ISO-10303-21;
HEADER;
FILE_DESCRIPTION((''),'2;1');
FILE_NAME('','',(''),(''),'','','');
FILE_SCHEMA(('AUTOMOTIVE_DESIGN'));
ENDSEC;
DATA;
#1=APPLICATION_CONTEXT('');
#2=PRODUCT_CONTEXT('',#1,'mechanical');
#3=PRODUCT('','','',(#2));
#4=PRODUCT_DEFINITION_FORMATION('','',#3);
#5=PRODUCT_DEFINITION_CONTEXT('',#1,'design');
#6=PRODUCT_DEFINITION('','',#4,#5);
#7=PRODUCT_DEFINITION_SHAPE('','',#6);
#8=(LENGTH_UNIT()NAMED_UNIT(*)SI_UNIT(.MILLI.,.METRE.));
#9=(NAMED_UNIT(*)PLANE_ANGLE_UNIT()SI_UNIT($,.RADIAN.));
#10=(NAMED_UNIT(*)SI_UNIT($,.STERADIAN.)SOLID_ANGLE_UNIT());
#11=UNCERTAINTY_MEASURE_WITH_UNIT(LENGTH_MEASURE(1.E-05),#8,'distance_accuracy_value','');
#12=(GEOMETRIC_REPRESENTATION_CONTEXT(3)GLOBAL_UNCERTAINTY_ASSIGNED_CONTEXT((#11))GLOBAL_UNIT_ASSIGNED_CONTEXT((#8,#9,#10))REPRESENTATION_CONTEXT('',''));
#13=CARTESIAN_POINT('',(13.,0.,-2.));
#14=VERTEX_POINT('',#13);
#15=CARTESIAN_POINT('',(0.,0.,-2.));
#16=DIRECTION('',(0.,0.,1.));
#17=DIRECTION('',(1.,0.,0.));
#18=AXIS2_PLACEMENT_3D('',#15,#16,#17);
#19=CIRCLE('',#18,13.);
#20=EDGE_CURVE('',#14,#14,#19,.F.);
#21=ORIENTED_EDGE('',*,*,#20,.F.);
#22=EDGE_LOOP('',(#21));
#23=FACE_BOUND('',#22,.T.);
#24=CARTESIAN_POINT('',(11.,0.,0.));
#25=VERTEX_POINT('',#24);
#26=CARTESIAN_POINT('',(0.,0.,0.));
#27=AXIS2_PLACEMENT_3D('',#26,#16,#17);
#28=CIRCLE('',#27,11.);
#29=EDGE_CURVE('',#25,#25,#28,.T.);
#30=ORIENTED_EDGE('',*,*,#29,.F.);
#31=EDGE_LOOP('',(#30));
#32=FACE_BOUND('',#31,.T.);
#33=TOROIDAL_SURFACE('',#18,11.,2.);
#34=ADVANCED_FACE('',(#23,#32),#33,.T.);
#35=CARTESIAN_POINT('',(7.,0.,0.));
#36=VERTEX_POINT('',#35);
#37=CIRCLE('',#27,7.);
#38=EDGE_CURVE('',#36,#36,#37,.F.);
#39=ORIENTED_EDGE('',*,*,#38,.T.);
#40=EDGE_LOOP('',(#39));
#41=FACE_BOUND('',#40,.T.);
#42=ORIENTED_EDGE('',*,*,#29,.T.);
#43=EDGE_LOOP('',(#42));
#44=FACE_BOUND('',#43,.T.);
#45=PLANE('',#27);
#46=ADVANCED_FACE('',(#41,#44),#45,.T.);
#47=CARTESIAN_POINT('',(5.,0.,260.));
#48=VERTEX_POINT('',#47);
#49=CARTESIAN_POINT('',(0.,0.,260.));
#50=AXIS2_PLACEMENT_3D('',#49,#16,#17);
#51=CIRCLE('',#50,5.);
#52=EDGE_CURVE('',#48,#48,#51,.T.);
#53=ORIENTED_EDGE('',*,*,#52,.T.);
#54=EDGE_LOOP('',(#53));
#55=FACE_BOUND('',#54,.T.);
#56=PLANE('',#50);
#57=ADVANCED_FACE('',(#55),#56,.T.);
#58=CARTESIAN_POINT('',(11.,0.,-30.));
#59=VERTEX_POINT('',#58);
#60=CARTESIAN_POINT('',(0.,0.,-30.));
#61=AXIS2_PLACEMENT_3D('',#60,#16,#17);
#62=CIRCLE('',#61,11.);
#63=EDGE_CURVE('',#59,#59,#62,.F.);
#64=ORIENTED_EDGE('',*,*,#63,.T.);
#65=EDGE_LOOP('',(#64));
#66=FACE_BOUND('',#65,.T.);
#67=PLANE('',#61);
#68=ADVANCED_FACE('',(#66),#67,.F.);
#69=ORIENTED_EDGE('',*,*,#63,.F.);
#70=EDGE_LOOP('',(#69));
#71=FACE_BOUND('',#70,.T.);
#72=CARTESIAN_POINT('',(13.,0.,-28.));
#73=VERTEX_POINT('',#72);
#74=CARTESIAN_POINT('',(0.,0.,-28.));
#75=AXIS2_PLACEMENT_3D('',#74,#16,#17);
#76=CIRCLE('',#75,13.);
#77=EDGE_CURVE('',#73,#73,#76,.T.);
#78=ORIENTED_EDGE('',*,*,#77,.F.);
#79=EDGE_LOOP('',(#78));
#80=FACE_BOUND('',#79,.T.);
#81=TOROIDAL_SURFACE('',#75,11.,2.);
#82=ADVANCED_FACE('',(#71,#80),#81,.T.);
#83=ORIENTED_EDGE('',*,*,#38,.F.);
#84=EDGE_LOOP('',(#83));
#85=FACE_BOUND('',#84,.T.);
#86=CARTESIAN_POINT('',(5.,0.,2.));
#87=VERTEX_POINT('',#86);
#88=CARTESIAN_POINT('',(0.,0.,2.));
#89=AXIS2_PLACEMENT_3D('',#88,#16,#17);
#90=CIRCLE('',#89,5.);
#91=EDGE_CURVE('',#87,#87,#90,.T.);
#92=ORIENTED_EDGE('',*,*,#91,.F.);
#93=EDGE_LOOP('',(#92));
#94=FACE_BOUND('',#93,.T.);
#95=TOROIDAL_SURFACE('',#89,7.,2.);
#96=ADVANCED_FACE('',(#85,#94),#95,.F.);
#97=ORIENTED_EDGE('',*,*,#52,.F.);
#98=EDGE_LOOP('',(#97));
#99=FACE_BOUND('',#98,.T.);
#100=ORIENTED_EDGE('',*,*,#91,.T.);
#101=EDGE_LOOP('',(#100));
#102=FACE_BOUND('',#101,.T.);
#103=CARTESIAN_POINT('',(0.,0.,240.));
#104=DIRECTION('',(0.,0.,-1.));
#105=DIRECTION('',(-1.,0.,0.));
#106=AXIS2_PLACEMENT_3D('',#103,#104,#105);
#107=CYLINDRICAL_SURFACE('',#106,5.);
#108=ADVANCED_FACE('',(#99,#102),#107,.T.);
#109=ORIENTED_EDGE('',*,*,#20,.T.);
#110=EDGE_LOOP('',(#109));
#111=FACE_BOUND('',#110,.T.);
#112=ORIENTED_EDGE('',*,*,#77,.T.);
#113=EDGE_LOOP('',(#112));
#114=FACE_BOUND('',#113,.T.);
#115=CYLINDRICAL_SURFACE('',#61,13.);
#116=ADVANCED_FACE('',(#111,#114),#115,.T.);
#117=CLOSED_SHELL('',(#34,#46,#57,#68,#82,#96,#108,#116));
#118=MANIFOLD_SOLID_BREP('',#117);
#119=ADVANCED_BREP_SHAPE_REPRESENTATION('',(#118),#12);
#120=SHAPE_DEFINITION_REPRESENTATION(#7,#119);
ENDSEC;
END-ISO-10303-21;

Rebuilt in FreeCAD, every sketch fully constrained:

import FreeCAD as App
import Part
import Sketcher
from FreeCAD import Vector


def edges_at(feature, points):
    """Names of the edges that pass closest to the given points."""
    edges = feature.Shape.Edges
    near = lambda p: min(range(len(edges)), key=lambda i: edges[i].distToShape(Part.Vertex(*p))[0])
    return sorted({f"Edge{near(p) + 1}" for p in points})

doc = App.newDocument("Part")
params = doc.addObject("Spreadsheet::Sheet", "Params")
for row, (alias, value) in enumerate([
    ("sketch1_diameter", "26 mm"),
    ("pad1_length", "30 mm"),
    ("sketch2_diameter", "10 mm"),
    ("pad2_length", "240 mm"),
    ("sketch3_diameter", "10 mm"),
    ("pad3_length", "20 mm"),
    ("fillet_radius", "2 mm"),
], start=1):
    params.set(f"A{row}", alias)
    params.set(f"B{row}", "=" + value)
    params.setAlias(f"B{row}", alias)

body = doc.addObject("PartDesign::Body", "Body")

# Sketch on XY plane
sketch1 = doc.addObject("Sketcher::SketchObject", "Sketch")
body.addObject(sketch1)
sketch1.AttachmentSupport = (doc.XY_Plane, [""])
sketch1.MapMode = "FlatFace"
sketch1.addGeometry(Part.Circle(Vector(0, 0, 0), Vector(0, 0, 1), 13), False)
sketch1.addConstraint([
    Sketcher.Constraint("Coincident", 0, 3, -1, 1),
    Sketcher.Constraint("Diameter", 0, 26.0),
])
sketch1.setExpression("Constraints[1]", "Params.sketch1_diameter")
pad1 = doc.addObject("PartDesign::Pad", "Pad")
body.addObject(pad1)
pad1.Profile = sketch1
pad1.setExpression("Length", "Params.pad1_length")
pad1.Reversed = True

# Sketch on XY plane
sketch2 = doc.addObject("Sketcher::SketchObject", "Sketch001")
body.addObject(sketch2)
sketch2.AttachmentSupport = (doc.XY_Plane, [""])
sketch2.MapMode = "FlatFace"
sketch2.addGeometry(Part.Circle(Vector(0, 0, 0), Vector(0, 0, 1), 5), False)
sketch2.addConstraint([
    Sketcher.Constraint("Coincident", 0, 3, -1, 1),
    Sketcher.Constraint("Diameter", 0, 10.0),
])
sketch2.setExpression("Constraints[1]", "Params.sketch2_diameter")
pad2 = doc.addObject("PartDesign::Pad", "Pad001")
body.addObject(pad2)
pad2.Profile = sketch2
pad2.setExpression("Length", "Params.pad2_length")

# Sketch on XY plane
sketch3 = doc.addObject("Sketcher::SketchObject", "Sketch002")
body.addObject(sketch3)
sketch3.AttachmentSupport = (doc.XY_Plane, [""])
sketch3.MapMode = "FlatFace"
sketch3.AttachmentOffset = App.Placement(Vector(0, 0, 240), App.Rotation())
sketch3.addGeometry(Part.Circle(Vector(0, 0, 0), Vector(0, 0, 1), 5), False)
sketch3.addConstraint([
    Sketcher.Constraint("Coincident", 0, 3, -1, 1),
    Sketcher.Constraint("Diameter", 0, 10.0),
])
sketch3.setExpression("Constraints[1]", "Params.sketch3_diameter")
pad3 = doc.addObject("PartDesign::Pad", "Pad002")
body.addObject(pad3)
pad3.Profile = sketch3
pad3.setExpression("Length", "Params.pad3_length")
doc.recompute()

fillet = doc.addObject("PartDesign::Fillet", "Fillet")
body.addObject(fillet)
fillet.Base = (pad3, edges_at(pad3, [(-13, 0, 0), (-13, 0, -30), (-5, 0, 0)]))
fillet.setExpression("Radius", "Params.fillet_radius")

doc.recompute()
